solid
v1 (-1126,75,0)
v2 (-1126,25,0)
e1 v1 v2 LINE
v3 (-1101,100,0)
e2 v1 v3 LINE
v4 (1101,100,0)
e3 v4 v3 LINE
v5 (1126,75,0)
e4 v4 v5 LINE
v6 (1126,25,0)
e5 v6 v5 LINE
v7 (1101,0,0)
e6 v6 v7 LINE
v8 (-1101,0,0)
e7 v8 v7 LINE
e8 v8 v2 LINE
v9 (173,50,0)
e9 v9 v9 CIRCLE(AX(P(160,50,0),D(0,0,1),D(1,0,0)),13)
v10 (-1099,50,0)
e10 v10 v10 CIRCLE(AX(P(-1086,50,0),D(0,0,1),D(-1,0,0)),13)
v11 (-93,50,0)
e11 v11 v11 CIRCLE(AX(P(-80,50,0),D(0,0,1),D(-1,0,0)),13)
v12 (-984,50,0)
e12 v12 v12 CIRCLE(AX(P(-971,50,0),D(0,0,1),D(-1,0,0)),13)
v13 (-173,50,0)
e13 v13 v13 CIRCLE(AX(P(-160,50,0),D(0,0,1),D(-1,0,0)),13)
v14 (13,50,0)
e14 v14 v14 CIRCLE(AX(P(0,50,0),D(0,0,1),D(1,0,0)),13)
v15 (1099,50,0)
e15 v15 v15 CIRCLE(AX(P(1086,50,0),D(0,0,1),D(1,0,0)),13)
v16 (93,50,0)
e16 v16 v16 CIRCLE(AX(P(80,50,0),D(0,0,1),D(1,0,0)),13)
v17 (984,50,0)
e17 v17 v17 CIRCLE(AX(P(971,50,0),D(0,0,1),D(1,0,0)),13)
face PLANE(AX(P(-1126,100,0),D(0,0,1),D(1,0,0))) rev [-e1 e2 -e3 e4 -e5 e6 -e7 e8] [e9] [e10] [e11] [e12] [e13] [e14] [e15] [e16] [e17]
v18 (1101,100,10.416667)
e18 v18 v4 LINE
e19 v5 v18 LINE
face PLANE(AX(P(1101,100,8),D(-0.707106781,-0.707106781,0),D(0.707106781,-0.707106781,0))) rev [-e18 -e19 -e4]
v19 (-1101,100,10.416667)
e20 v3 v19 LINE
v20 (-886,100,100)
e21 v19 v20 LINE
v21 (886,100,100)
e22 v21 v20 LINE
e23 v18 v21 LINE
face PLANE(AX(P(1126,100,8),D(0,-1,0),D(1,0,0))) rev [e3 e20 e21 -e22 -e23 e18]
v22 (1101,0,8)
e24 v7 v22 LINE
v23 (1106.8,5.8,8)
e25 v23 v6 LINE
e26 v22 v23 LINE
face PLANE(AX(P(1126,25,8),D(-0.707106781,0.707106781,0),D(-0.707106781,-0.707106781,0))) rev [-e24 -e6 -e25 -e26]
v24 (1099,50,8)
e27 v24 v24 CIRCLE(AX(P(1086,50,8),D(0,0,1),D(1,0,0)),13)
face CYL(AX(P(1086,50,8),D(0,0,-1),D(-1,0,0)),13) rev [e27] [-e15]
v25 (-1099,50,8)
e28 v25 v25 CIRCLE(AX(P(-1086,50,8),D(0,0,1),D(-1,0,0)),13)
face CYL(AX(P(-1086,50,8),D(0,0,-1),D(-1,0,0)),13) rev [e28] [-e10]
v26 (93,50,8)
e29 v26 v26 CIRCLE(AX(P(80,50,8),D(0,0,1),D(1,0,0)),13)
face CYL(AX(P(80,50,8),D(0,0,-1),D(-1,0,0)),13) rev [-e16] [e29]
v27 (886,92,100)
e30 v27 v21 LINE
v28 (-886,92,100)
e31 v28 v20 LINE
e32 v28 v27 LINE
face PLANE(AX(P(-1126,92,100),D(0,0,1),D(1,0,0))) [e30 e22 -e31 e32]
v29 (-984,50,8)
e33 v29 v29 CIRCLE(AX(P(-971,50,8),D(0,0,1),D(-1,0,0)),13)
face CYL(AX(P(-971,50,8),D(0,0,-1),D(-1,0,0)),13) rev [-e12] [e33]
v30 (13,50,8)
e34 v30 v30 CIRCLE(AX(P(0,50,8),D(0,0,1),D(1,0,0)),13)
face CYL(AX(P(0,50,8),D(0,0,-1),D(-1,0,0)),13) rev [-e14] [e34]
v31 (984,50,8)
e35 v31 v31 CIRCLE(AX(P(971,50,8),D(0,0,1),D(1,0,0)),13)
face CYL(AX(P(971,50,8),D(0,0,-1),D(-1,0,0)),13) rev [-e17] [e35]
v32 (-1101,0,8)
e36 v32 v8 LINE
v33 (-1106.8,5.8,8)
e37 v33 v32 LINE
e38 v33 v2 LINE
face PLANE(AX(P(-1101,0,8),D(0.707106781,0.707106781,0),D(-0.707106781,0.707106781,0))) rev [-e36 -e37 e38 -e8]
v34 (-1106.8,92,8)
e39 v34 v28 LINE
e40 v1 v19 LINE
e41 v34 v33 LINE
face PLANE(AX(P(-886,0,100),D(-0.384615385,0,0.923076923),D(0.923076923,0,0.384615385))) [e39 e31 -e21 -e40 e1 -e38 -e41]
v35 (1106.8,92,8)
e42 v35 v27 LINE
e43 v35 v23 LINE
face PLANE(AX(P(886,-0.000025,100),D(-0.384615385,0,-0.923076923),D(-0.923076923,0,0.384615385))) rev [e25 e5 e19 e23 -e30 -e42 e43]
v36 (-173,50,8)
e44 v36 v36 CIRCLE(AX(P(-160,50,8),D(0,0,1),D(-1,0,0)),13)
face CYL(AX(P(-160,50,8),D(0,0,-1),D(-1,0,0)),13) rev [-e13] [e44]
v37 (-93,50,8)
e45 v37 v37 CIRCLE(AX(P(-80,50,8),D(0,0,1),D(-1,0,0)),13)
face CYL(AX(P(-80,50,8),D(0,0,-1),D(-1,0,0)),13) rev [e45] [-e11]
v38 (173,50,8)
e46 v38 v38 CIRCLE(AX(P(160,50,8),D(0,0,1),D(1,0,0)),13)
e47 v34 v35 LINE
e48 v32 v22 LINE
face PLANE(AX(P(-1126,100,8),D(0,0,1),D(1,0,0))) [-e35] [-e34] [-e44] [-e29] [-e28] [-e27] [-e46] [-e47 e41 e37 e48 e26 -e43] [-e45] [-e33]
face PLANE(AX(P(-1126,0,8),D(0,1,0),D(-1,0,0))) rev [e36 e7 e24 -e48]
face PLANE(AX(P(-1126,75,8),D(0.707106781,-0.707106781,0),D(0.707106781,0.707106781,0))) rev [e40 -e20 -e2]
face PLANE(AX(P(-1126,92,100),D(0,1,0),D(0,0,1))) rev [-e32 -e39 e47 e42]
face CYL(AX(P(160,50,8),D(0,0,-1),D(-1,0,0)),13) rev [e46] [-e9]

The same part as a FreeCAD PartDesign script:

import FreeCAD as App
import Part
import Sketcher
from FreeCAD import Vector
Q = App.Units.Quantity


def edges_at(feature, points):
    """Names of the edges that pass closest to the given points."""
    edges = feature.Shape.Edges
    near = lambda p: min(range(len(edges)), key=lambda i: edges[i].distToShape(Part.Vertex(*p))[0])
    return sorted({f"Edge{near(p) + 1}" for p in points})


def add_polygon(sketch, points):
    """Adds a closed chain of lines whose ends are joined by coincident constraints."""
    first, n = sketch.GeometryCount, len(points)
    for a, b in zip(points, points[1:] + points[:1]):
        sketch.addGeometry(Part.LineSegment(App.Vector(*a, 0), App.Vector(*b, 0)), False)
    for i in range(n):
        sketch.addConstraint(Sketcher.Constraint("Coincident", first + i, 2, first + (i + 1) % n, 1))

doc = App.newDocument("Part")
body = doc.addObject("PartDesign::Body", "Body")

sketch1 = doc.addObject("Sketcher::SketchObject", "Sketch")
body.addObject(sketch1)
sketch1.AttachmentSupport = (doc.XY_Plane, [""])
sketch1.MapMode = "FlatFace"
add_polygon(sketch1, [(-1126, 100), (-1126, 0), (1126, 0), (1126, 100)])
sketch1.addGeometry(Part.Circle(Vector(-1086, 50, 0), Vector(0, 0, 1), 13), False)
sketch1.addGeometry(Part.Circle(Vector(-971, 50, 0), Vector(0, 0, 1), 13), False)
sketch1.addGeometry(Part.Circle(Vector(-160, 50, 0), Vector(0, 0, 1), 13), False)
sketch1.addGeometry(Part.Circle(Vector(-80, 50, 0), Vector(0, 0, 1), 13), False)
sketch1.addGeometry(Part.Circle(Vector(0, 50, 0), Vector(0, 0, 1), 13), False)
sketch1.addGeometry(Part.Circle(Vector(80, 50, 0), Vector(0, 0, 1), 13), False)
sketch1.addGeometry(Part.Circle(Vector(160, 50, 0), Vector(0, 0, 1), 13), False)
sketch1.addGeometry(Part.Circle(Vector(971, 50, 0), Vector(0, 0, 1), 13), False)
sketch1.addGeometry(Part.Circle(Vector(1086, 50, 0), Vector(0, 0, 1), 13), False)
sketch1.addConstraint(Sketcher.Constraint("Vertical", 0))
sketch1.addConstraint(Sketcher.Constraint("Horizontal", 1))
sketch1.addConstraint(Sketcher.Constraint("Vertical", 2))
sketch1.addConstraint(Sketcher.Constraint("Horizontal", 3))
sketch1.addConstraint(Sketcher.Constraint("Equal", 4, 5))
sketch1.addConstraint(Sketcher.Constraint("Equal", 5, 6))
sketch1.addConstraint(Sketcher.Constraint("Equal", 6, 7))
sketch1.addConstraint(Sketcher.Constraint("Equal", 7, 8))
sketch1.addConstraint(Sketcher.Constraint("Equal", 8, 9))
sketch1.addConstraint(Sketcher.Constraint("Equal", 9, 10))
sketch1.addConstraint(Sketcher.Constraint("Equal", 10, 11))
sketch1.addConstraint(Sketcher.Constraint("Equal", 11, 12))
sketch1.addConstraint(Sketcher.Constraint("Symmetric", 0, 2, 1, 2, -1, 1))
sketch1.addConstraint(Sketcher.Constraint("Symmetric", 7, 3, 9, 3, -2))
sketch1.addConstraint(Sketcher.Constraint("Symmetric", 6, 3, 10, 3, -2))
sketch1.addConstraint(Sketcher.Constraint("Symmetric", 5, 3, 11, 3, -2))
sketch1.addConstraint(Sketcher.Constraint("Symmetric", 4, 3, 12, 3, -2))
sketch1.addConstraint(Sketcher.Constraint("PointOnObject", 8, 3, -2))
sketch1.addConstraint(Sketcher.Constraint("Horizontal", 4, 3, 5, 3))
sketch1.addConstraint(Sketcher.Constraint("Horizontal", 5, 3, 6, 3))
sketch1.addConstraint(Sketcher.Constraint("Horizontal", 6, 3, 7, 3))
sketch1.addConstraint(Sketcher.Constraint("Horizontal", 7, 3, 8, 3))
sketch1.addConstraint(Sketcher.Constraint("Diameter", 4, Q("26 mm")))
sketch1.addConstraint(Sketcher.Constraint("DistanceX", 1, 1, 1, 2, Q("2252 mm")))
sketch1.addConstraint(Sketcher.Constraint("DistanceY", 0, 2, 0, 1, Q("100 mm")))
sketch1.addConstraint(Sketcher.Constraint("DistanceX", 4, 3, -1, 1, Q("1086 mm")))
sketch1.addConstraint(Sketcher.Constraint("DistanceY", -1, 1, 4, 3, Q("50 mm")))
sketch1.addConstraint(Sketcher.Constraint("DistanceX", 5, 3, -1, 1, Q("971 mm")))
sketch1.addConstraint(Sketcher.Constraint("DistanceX", 6, 3, -1, 1, Q("160 mm")))
sketch1.addConstraint(Sketcher.Constraint("DistanceX", 7, 3, -1, 1, Q("80 mm")))
pad1 = doc.addObject("PartDesign::Pad", "Pad")
body.addObject(pad1)
pad1.Profile = sketch1
pad1.Length = 8

sketch2 = doc.addObject("Sketcher::SketchObject", "Sketch001")
body.addObject(sketch2)
sketch2.AttachmentSupport = (doc.XY_Plane, [""])
sketch2.MapMode = "FlatFace"
sketch2.AttachmentOffset = App.Placement(Vector(0, 0, 8), App.Rotation())
add_polygon(sketch2, [(-1126, 100), (-1126, 92), (1126, 92), (1126, 100)])
sketch2.addConstraint(Sketcher.Constraint("Vertical", 0))
sketch2.addConstraint(Sketcher.Constraint("Horizontal", 1))
sketch2.addConstraint(Sketcher.Constraint("Vertical", 2))
sketch2.addConstraint(Sketcher.Constraint("Horizontal", 3))
sketch2.addConstraint(Sketcher.Constraint("DistanceX", 1, 1, 1, 2, Q("2252 mm")))
sketch2.addConstraint(Sketcher.Constraint("DistanceY", 0, 2, 0, 1, Q("8 mm")))
sketch2.addConstraint(Sketcher.Constraint("DistanceX", 0, 2, -1, 1, Q("1126 mm")))
sketch2.addConstraint(Sketcher.Constraint("DistanceY", -1, 1, 0, 2, Q("92 mm")))
pad2 = doc.addObject("PartDesign::Pad", "Pad001")
body.addObject(pad2)
pad2.Profile = sketch2
pad2.Length = 92
doc.recompute()

chamfer = doc.addObject("PartDesign::Chamfer", "Chamfer")
body.addObject(chamfer)
chamfer.Base = (pad2, edges_at(pad2, [(1126, 0, 4)]))
chamfer.Size = 25
doc.recompute()

chamfer2 = doc.addObject("PartDesign::Chamfer", "Chamfer001")
body.addObject(chamfer2)
chamfer2.Base = (chamfer, edges_at(chamfer, [(1126, 100, 50)]))
chamfer2.Size = 25

sketch3 = doc.addObject("Sketcher::SketchObject", "Sketch002")
body.addObject(sketch3)
sketch3.AttachmentSupport = (doc.XZ_Plane, [""])
sketch3.MapMode = "FlatFace"
sketch3.AttachmentOffset = App.Placement(Vector(0, 0, -100), App.Rotation())
add_polygon(sketch3, [(1126, 0), (886, 100), (1126, 100)])
sketch3.addConstraint(Sketcher.Constraint("Horizontal", 1))
sketch3.addConstraint(Sketcher.Constraint("Vertical", 2))
sketch3.addConstraint(Sketcher.Constraint("PointOnObject", 2, 2, -1))
sketch3.addConstraint(Sketcher.Constraint("DistanceX", 1, 1, 1, 2, Q("240 mm")))
sketch3.addConstraint(Sketcher.Constraint("DistanceY", 2, 2, 2, 1, Q("100 mm")))
sketch3.addConstraint(Sketcher.Constraint("DistanceX", -1, 1, 0, 2, Q("886 mm")))
pocket1 = doc.addObject("PartDesign::Pocket", "Pocket")
body.addObject(pocket1)
pocket1.Profile = sketch3
pocket1.Type = "ThroughAll"
pocket1.Reversed = True
doc.recompute()

chamfer3 = doc.addObject("PartDesign::Chamfer", "Chamfer002")
body.addObject(chamfer3)
chamfer3.Base = (pocket1, edges_at(pocket1, [(-1126, 0, 4)]))
chamfer3.Size = 25
doc.recompute()

chamfer4 = doc.addObject("PartDesign::Chamfer", "Chamfer003")
body.addObject(chamfer4)
chamfer4.Base = (chamfer3, edges_at(chamfer3, [(-1126, 100, 50)]))
chamfer4.Size = 25
doc.recompute()

mirrored = doc.addObject("PartDesign::Mirrored", "Mirrored")
body.addObject(mirrored)
mirrored.Originals = [pocket1]
mirrored.MirrorPlane = (doc.YZ_Plane, [""])
body.Tip = mirrored

doc.recompute()
